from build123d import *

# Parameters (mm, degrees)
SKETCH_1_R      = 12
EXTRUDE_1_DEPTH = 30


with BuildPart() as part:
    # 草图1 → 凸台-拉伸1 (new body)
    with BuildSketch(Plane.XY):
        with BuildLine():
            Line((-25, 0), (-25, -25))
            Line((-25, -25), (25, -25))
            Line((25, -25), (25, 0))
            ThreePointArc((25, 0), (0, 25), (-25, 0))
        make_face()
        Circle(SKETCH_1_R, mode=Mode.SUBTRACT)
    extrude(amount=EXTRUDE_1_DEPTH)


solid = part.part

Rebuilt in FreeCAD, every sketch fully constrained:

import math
import FreeCAD as App
import Part
import Sketcher

doc = App.newDocument("Part")
body = doc.addObject("PartDesign::Body", "Body")

# Sketch on XY plane
sketch1 = body.newObject("Sketcher::SketchObject", "Sketch")
sketch1.AttachmentSupport = (doc.getObject("XY_Plane"), [""])
sketch1.MapMode = "FlatFace"
sketch1.addGeometry(Part.LineSegment(App.Vector(-25, 0, 0), App.Vector(-25, -25, 0)), False)
sketch1.addGeometry(Part.LineSegment(App.Vector(-25, -25, 0), App.Vector(25, -25, 0)), False)
sketch1.addGeometry(Part.LineSegment(App.Vector(25, -25, 0), App.Vector(25, 0, 0)), False)
sketch1.addGeometry(Part.ArcOfCircle(Part.Circle(App.Vector(0, 0, 0), App.Vector(0, 0, 1), 25), math.radians(0), math.radians(180)), False)
sketch1.addGeometry(Part.Circle(App.Vector(0, 0, 0), App.Vector(0, 0, 1), 12), False)
sketch1.addConstraint(Sketcher.Constraint("Coincident", 0, 2, 1, 1))
sketch1.addConstraint(Sketcher.Constraint("Coincident", 1, 2, 2, 1))
sketch1.addConstraint(Sketcher.Constraint("Tangent", 2, 2, 3, 1))
sketch1.addConstraint(Sketcher.Constraint("Tangent", 3, 2, 0, 1))
sketch1.addConstraint(Sketcher.Constraint("Vertical", 0))
sketch1.addConstraint(Sketcher.Constraint("Horizontal", 1))
sketch1.addConstraint(Sketcher.Constraint("Vertical", 2))
sketch1.addConstraint(Sketcher.Constraint("Coincident", 3, 3, -1, 1))
sketch1.addConstraint(Sketcher.Constraint("Coincident", 4, 3, -1, 1))
sketch1.addConstraint(Sketcher.Constraint("Diameter", 4, 24.0))
sketch1.addConstraint(Sketcher.Constraint("Radius", 3, 25.0))
sketch1.addConstraint(Sketcher.Constraint("DistanceY", 0, 2, 0, 1, 25.0))
pad1 = body.newObject("PartDesign::Pad", "Pad")
pad1.Profile = sketch1
pad1.Length = 30

doc.recompute()
